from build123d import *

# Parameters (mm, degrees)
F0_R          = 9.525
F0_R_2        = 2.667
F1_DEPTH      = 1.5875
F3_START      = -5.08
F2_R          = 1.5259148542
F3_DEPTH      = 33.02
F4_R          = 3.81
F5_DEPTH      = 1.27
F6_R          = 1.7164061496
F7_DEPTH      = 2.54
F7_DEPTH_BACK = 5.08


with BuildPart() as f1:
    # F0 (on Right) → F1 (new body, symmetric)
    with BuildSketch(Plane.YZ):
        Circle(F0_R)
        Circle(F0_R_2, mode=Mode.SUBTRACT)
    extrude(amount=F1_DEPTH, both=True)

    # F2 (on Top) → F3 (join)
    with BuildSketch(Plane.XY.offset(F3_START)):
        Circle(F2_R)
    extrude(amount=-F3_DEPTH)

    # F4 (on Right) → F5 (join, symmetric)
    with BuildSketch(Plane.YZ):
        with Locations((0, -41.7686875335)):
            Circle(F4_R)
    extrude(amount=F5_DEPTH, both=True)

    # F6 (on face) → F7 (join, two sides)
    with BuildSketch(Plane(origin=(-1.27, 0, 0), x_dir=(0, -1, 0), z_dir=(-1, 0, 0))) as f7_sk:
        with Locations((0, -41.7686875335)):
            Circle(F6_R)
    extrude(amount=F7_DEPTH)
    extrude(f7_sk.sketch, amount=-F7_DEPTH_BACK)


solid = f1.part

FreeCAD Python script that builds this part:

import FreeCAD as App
import Part
import Sketcher

V = App.Vector
Q = App.Units.Quantity

doc = App.newDocument("Part")
body = doc.addObject("PartDesign::Body", "Body")

# Sketch on YZ plane
sketch1 = body.newObject("Sketcher::SketchObject", "Sketch")
sketch1.AttachmentSupport = (doc.getObject("YZ_Plane"), [""])
sketch1.MapMode = "FlatFace"
sketch1.addGeometry([
    Part.Circle(V(0, 0, 0), V(0, 0, 1), 9.5),
    Part.Circle(V(0, 0, 0), V(0, 0, 1), 2.7),
], False)
sketch1.addConstraint([
    Sketcher.Constraint("Coincident", 0, 3, -1, 1),
    Sketcher.Constraint("Coincident", 1, 3, -1, 1),
    Sketcher.Constraint("Diameter", 0, Q("0.75 in")),
    Sketcher.Constraint("Diameter", 1, Q("0.21 in")),
])
pad1 = body.newObject("PartDesign::Pad", "Pad")
pad1.Profile = sketch1
pad1.Length = Q("0.125 in")
pad1.Midplane = True

# Sketch on XY plane
sketch2 = body.newObject("Sketcher::SketchObject", "Sketch001")
sketch2.AttachmentSupport = (doc.getObject("XY_Plane"), [""])
sketch2.MapMode = "FlatFace"
sketch2.AttachmentOffset = App.Placement(V(0, 0, -0.2 * 25.4), App.Rotation())
sketch2.addGeometry(Part.Circle(V(0, 0, 0), V(0, 0, 1), 1.5), False)
sketch2.addConstraint([
    Sketcher.Constraint("Coincident", 0, 3, -1, 1),
    Sketcher.Constraint("Diameter", 0, Q("3.05183 mm")),
])
pad2 = body.newObject("PartDesign::Pad", "Pad001")
pad2.Profile = sketch2
pad2.Length = Q("1.3 in")
pad2.Reversed = True

# Sketch on YZ plane
sketch3 = body.newObject("Sketcher::SketchObject", "Sketch002")
sketch3.AttachmentSupport = (doc.getObject("YZ_Plane"), [""])
sketch3.MapMode = "FlatFace"
sketch3.addGeometry(Part.Circle(V(0, -41.8, 0), V(0, 0, 1), 3.8), False)
sketch3.addConstraint([
    Sketcher.Constraint("PointOnObject", 0, 3, -2),
    Sketcher.Constraint("Diameter", 0, Q("0.3 in")),
    Sketcher.Constraint("DistanceY", 0, 3, -1, 1, Q("41.768688 mm")),
])
pad3 = body.newObject("PartDesign::Pad", "Pad002")
pad3.Profile = sketch3
pad3.Length = Q("0.1 in")
pad3.Midplane = True

# Sketch on YZ plane
sketch4 = body.newObject("Sketcher::SketchObject", "Sketch003")
sketch4.AttachmentSupport = (doc.getObject("YZ_Plane"), [""])
sketch4.MapMode = "FlatFace"
sketch4.AttachmentOffset = App.Placement(V(0, 0, -0.05 * 25.4), App.Rotation())
sketch4.addGeometry(Part.Circle(V(0, -41.8, 0), V(0, 0, 1), 1.7), False)
sketch4.addConstraint([
    Sketcher.Constraint("PointOnObject", 0, 3, -2),
    Sketcher.Constraint("Diameter", 0, Q("3.432812 mm")),
    Sketcher.Constraint("DistanceY", 0, 3, -1, 1, Q("41.768688 mm")),
])
pad4 = body.newObject("PartDesign::Pad", "Pad003")
pad4.Profile = sketch4
pad4.Type = "TwoLengths"
pad4.Length = Q("0.1 in")
pad4.Length2 = Q("0.2 in")
pad4.Reversed = True

doc.recompute()
